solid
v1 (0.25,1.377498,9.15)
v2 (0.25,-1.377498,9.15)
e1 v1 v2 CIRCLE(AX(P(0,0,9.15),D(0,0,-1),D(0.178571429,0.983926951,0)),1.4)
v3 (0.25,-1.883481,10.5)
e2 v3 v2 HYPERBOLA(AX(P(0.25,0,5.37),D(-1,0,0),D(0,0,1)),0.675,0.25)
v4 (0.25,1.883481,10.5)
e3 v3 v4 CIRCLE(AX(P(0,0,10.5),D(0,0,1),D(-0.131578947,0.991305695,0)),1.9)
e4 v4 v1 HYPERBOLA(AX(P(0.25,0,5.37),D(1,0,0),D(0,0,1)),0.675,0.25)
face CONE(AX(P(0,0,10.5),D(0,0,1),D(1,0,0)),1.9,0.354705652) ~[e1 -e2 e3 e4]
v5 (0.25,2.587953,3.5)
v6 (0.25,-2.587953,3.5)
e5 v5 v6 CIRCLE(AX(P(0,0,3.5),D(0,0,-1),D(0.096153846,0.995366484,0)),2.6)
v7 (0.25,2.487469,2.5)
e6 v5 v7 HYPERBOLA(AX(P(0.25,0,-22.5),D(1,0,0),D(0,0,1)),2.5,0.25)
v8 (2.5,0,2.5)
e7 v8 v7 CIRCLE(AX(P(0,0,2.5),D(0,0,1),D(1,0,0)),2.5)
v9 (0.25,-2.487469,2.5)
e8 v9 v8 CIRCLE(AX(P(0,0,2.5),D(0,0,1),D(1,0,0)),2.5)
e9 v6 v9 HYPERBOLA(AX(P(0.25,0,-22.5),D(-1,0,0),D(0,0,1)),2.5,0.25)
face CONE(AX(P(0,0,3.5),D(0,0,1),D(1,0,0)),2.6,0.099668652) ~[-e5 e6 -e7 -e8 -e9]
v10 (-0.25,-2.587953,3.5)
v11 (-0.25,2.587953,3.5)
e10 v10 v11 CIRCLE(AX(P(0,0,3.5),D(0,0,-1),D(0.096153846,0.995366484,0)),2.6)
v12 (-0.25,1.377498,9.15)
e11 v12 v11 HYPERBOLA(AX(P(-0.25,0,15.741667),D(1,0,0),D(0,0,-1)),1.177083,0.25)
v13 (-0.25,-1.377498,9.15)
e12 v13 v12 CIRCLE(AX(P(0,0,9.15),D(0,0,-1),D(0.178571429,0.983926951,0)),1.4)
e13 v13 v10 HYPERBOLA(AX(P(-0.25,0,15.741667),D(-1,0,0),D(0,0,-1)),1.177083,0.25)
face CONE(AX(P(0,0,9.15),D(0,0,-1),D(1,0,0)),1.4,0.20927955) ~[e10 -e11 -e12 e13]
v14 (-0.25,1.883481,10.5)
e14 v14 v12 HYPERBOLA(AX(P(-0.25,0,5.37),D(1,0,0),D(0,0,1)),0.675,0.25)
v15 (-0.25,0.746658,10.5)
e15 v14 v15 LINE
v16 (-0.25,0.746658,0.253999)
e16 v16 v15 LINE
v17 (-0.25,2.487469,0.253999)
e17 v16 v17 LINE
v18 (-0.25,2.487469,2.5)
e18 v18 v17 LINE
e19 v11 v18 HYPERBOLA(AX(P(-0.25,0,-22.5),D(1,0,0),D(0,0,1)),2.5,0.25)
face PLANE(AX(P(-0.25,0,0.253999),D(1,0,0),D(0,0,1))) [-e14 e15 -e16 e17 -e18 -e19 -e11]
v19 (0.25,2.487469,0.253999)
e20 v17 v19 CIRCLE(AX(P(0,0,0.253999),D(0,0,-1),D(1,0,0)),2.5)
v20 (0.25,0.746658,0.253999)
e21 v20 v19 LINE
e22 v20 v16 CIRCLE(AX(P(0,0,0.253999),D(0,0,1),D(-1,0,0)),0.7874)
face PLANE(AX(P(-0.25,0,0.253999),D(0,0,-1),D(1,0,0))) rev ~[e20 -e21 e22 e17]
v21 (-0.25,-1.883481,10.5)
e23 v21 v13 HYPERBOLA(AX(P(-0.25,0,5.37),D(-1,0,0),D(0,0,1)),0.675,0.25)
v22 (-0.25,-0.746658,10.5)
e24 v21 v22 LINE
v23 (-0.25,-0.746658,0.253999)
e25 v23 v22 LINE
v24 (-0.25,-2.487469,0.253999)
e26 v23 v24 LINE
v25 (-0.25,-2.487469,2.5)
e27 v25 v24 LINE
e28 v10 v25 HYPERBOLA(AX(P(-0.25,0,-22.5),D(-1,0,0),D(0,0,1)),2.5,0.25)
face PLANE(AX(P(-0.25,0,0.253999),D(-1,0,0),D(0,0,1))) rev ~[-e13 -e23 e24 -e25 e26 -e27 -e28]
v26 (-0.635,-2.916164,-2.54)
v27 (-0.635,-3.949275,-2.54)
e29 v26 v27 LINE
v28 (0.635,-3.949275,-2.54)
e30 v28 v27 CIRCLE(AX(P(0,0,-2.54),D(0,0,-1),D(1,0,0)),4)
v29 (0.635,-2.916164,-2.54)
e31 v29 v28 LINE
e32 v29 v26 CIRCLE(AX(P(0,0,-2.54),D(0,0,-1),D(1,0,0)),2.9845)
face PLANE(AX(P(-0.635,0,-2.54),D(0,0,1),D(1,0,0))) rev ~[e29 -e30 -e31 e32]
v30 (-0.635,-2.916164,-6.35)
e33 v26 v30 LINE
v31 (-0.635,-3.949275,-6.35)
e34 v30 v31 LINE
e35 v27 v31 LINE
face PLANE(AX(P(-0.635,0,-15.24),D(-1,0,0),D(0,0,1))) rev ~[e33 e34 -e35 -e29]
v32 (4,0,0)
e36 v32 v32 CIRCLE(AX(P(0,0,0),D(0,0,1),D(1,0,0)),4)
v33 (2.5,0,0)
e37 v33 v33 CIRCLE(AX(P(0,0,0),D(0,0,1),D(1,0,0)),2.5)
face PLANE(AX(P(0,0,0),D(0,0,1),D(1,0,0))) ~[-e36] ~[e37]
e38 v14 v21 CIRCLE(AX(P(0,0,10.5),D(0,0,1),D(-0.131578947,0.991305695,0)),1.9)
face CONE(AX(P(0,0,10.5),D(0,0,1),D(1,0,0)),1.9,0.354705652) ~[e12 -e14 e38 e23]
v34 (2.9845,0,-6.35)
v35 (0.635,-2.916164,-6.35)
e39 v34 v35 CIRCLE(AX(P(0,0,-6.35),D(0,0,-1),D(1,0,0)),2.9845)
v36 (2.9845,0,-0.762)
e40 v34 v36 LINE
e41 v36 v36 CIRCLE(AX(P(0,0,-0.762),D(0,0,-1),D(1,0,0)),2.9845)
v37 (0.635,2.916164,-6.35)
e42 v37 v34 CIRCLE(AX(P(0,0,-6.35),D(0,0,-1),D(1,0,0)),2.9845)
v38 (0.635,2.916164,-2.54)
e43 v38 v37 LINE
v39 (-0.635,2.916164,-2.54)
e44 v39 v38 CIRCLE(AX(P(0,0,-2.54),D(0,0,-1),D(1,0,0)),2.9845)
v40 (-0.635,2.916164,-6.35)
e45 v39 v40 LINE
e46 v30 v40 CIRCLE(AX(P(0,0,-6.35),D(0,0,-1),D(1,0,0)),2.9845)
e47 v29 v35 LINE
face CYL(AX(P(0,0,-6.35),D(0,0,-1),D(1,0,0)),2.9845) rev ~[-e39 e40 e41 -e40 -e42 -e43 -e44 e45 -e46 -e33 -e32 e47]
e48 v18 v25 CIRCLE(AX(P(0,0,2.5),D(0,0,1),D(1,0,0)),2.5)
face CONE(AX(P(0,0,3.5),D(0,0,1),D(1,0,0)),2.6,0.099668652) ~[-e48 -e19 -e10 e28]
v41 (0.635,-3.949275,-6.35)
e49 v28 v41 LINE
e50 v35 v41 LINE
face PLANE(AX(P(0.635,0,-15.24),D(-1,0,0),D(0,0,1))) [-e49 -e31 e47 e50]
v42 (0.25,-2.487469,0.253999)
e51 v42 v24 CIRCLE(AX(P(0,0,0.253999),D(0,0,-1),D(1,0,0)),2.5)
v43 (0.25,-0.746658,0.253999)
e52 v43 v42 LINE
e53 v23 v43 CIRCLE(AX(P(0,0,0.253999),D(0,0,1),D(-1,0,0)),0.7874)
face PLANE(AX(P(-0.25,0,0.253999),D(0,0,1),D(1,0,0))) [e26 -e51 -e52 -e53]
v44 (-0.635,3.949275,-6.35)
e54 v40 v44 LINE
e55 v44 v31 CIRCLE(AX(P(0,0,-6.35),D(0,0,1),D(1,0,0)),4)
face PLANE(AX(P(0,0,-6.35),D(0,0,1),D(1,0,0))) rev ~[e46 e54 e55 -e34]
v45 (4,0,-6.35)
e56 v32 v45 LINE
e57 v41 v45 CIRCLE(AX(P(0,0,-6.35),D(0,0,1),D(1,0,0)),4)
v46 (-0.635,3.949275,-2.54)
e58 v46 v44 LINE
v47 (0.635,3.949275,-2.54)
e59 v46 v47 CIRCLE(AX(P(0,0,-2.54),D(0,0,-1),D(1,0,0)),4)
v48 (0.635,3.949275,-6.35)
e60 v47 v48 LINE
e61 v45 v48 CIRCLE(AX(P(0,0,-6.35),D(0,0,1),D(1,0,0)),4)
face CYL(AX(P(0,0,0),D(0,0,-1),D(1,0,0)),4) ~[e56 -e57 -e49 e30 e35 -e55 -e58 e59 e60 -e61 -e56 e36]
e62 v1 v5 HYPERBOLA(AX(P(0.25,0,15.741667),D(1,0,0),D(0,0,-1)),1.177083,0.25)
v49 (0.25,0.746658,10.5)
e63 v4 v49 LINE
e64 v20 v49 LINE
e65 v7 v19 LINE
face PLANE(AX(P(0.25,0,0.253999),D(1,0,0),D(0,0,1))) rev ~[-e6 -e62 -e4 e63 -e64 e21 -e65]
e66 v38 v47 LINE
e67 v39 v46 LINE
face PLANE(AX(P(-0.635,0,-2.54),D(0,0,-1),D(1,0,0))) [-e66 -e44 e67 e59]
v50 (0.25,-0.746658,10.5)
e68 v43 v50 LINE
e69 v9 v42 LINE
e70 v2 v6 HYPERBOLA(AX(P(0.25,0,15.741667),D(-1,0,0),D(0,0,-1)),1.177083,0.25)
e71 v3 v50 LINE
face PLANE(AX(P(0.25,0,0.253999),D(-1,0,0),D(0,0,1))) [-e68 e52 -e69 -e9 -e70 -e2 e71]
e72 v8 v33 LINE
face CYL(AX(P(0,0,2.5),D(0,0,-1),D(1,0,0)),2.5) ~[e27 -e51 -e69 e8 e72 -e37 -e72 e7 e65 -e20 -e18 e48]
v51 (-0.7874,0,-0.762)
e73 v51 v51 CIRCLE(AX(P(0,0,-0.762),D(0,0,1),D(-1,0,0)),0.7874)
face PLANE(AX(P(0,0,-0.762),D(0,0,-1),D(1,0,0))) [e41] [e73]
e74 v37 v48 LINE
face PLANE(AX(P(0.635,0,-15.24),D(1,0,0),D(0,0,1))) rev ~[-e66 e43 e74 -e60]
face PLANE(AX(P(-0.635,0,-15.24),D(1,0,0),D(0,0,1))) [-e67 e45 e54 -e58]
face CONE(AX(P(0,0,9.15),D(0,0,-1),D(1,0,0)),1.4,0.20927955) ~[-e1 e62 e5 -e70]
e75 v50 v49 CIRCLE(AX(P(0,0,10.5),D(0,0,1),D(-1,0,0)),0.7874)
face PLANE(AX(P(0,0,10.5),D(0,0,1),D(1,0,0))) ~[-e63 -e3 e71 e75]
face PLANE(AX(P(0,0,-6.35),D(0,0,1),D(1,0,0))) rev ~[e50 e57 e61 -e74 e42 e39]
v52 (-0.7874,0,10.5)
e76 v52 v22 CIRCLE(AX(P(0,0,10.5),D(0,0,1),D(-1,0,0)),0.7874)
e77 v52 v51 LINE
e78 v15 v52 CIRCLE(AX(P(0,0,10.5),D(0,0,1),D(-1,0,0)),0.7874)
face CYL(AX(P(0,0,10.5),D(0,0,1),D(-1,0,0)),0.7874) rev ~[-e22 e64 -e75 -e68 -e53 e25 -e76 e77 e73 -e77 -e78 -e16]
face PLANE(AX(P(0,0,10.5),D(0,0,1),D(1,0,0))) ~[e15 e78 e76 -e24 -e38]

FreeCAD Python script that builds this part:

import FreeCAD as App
import Part
import Sketcher
from FreeCAD import Vector
Q = App.Units.Quantity


def add_polygon(sketch, points):
    """Adds a closed chain of lines whose ends are joined by coincident constraints."""
    first, n = sketch.GeometryCount, len(points)
    for a, b in zip(points, points[1:] + points[:1]):
        sketch.addGeometry(Part.LineSegment(App.Vector(*a, 0), App.Vector(*b, 0)), False)
    for i in range(n):
        sketch.addConstraint(Sketcher.Constraint("Coincident", first + i, 2, first + (i + 1) % n, 1))

doc = App.newDocument("Part")
body = doc.addObject("PartDesign::Body", "Body")

sketch1 = body.newObject("Sketcher::SketchObject", "Sketch")
sketch1.AttachmentSupport = (doc.getObject("XZ_Plane"), [""])
sketch1.MapMode = "FlatFace"
add_polygon(sketch1, [(4, 0), (2.5, 0), (2.5, 2.5), (2.6, 3.5), (1.4, 9.2), (1.9, 10.5), (0, 10.5), (0, -6.3), (4, -6.3)])
sketch1.addConstraint([
    Sketcher.Constraint("Horizontal", 0),
    Sketcher.Constraint("Vertical", 1),
    Sketcher.Constraint("Horizontal", 5),
    Sketcher.Constraint("Vertical", 6),
    Sketcher.Constraint("Horizontal", 7),
    Sketcher.Constraint("Vertical", 8),
    Sketcher.Constraint("PointOnObject", 0, 2, -1),
    Sketcher.Constraint("PointOnObject", 5, 2, -2),
    Sketcher.Constraint("DistanceY", 8, 1, 8, 2, Q("0.25 in")),
    Sketcher.Constraint("DistanceX", 0, 2, 0, 1, Q("1.5 mm")),
    Sketcher.Constraint("DistanceX", 5, 2, 5, 1, Q("1.9 mm")),
    Sketcher.Constraint("DistanceX", 7, 1, 7, 2, Q("4 mm")),
    Sketcher.Constraint("DistanceY", 1, 1, 1, 2, Q("2.5 mm")),
    Sketcher.Constraint("DistanceY", 6, 2, 6, 1, Q("16.85 mm")),
    Sketcher.Constraint("DistanceX", -1, 1, 2, 2, Q("2.6 mm")),
    Sketcher.Constraint("DistanceY", -1, 1, 2, 2, Q("3.5 mm")),
    Sketcher.Constraint("DistanceX", -1, 1, 3, 2, Q("1.4 mm")),
    Sketcher.Constraint("DistanceY", -1, 1, 3, 2, Q("9.15 mm")),
])
revolution = body.newObject("PartDesign::Revolution", "Revolution")
revolution.Profile = sketch1
revolution.ReferenceAxis = (sketch1, ["V_Axis"])
revolution.Angle = 360

sketch2 = body.newObject("Sketcher::SketchObject", "Sketch001")
sketch2.AttachmentSupport = (doc.getObject("XY_Plane"), [""])
sketch2.MapMode = "FlatFace"
sketch2.AttachmentOffset = App.Placement(Vector(0, 0, -0.25 * 25.4), App.Rotation())
sketch2.addGeometry(Part.Circle(Vector(0, 0, 0), Vector(0, 0, 1), 3), False)
sketch2.addConstraint([
    Sketcher.Constraint("Coincident", 0, 3, -1, 1),
    Sketcher.Constraint("Diameter", 0, Q("0.235 in")),
])
pocket1 = body.newObject("PartDesign::Pocket", "Pocket")
pocket1.Profile = sketch2
pocket1.Length = Q("0.22 in")
pocket1.Reversed = True

sketch3 = body.newObject("Sketcher::SketchObject", "Sketch002")
sketch3.AttachmentSupport = (doc.getObject("XY_Plane"), [""])
sketch3.MapMode = "FlatFace"
sketch3.AttachmentOffset = App.Placement(Vector(0, 0, 10.5), App.Rotation())
sketch3.addGeometry(Part.Circle(Vector(0, 0, 0), Vector(0, 0, 1), 0.8), False)
sketch3.addConstraint([
    Sketcher.Constraint("Coincident", 0, 3, -1, 1),
    Sketcher.Constraint("Diameter", 0, Q("0.062 in")),
])
pocket2 = body.newObject("PartDesign::Pocket", "Pocket001")
pocket2.Profile = sketch3
pocket2.Type = "ThroughAll"

sketch4 = body.newObject("Sketcher::SketchObject", "Sketch003")
sketch4.AttachmentSupport = (doc.getObject("XZ_Plane"), [""])
sketch4.MapMode = "FlatFace"
add_polygon(sketch4, [(-0.2, 12.9), (-0.2, 0.3), (0.2, 0.3), (0.2, 12.9)])
add_polygon(sketch4, [(-0.2, -10.4), (-0.2, -16.5), (0.2, -16.5), (0.2, -10.4)])
sketch4.addConstraint([
    Sketcher.Constraint("Vertical", 0),
    Sketcher.Constraint("Horizontal", 1),
    Sketcher.Constraint("Vertical", 2),
    Sketcher.Constraint("Horizontal", 3),
    Sketcher.Constraint("Vertical", 4),
    Sketcher.Constraint("Horizontal", 5),
    Sketcher.Constraint("Vertical", 6),
    Sketcher.Constraint("Horizontal", 7),
    Sketcher.Constraint("Vertical", 3, 2, 4, 2),
    Sketcher.Constraint("Vertical", 2, 2, 5, 2),
    Sketcher.Constraint("DistanceY", -1, 1, 0, 2, Q("0.01 in")),
    Sketcher.Constraint("DistanceX", 1, 1, 1, 2, Q("0.5 mm")),
    Sketcher.Constraint("DistanceY", 0, 2, 0, 1, Q("12.688059 mm")),
    Sketcher.Constraint("DistanceY", 4, 2, 4, 1, Q("6.122161 mm")),
    Sketcher.Constraint("DistanceX", 0, 2, -1, 1, Q("0.25 mm")),
    Sketcher.Constraint("DistanceY", 4, 2, -1, 1, Q("16.536715 mm")),
])
pocket3 = body.newObject("PartDesign::Pocket", "Pocket002")
pocket3.Profile = sketch4
pocket3.Type = "ThroughAll"
pocket3.Midplane = True

sketch5 = body.newObject("Sketcher::SketchObject", "Sketch004")
sketch5.AttachmentSupport = (doc.getObject("XZ_Plane"), [""])
sketch5.MapMode = "FlatFace"
add_polygon(sketch5, [(-0.6, -2.5), (-0.6, -15.2), (0.6, -15.2), (0.6, -2.5)])
sketch5.addConstraint([
    Sketcher.Constraint("Vertical", 0),
    Sketcher.Constraint("Horizontal", 1),
    Sketcher.Constraint("Vertical", 2),
    Sketcher.Constraint("Horizontal", 3),
    Sketcher.Constraint("DistanceY", 0, 2, 0, 1, Q("0.5 in")),
    Sketcher.Constraint("DistanceX", 1, 1, 1, 2, Q("0.05 in")),
    Sketcher.Constraint("DistanceY", 0, 2, -1, 1, Q("0.6 in")),
    Sketcher.Constraint("DistanceX", 0, 2, -1, 1, Q("0.025 in")),
])
pocket4 = body.newObject("PartDesign::Pocket", "Pocket003")
pocket4.Profile = sketch5
pocket4.Type = "ThroughAll"
pocket4.Midplane = True

doc.recompute()
